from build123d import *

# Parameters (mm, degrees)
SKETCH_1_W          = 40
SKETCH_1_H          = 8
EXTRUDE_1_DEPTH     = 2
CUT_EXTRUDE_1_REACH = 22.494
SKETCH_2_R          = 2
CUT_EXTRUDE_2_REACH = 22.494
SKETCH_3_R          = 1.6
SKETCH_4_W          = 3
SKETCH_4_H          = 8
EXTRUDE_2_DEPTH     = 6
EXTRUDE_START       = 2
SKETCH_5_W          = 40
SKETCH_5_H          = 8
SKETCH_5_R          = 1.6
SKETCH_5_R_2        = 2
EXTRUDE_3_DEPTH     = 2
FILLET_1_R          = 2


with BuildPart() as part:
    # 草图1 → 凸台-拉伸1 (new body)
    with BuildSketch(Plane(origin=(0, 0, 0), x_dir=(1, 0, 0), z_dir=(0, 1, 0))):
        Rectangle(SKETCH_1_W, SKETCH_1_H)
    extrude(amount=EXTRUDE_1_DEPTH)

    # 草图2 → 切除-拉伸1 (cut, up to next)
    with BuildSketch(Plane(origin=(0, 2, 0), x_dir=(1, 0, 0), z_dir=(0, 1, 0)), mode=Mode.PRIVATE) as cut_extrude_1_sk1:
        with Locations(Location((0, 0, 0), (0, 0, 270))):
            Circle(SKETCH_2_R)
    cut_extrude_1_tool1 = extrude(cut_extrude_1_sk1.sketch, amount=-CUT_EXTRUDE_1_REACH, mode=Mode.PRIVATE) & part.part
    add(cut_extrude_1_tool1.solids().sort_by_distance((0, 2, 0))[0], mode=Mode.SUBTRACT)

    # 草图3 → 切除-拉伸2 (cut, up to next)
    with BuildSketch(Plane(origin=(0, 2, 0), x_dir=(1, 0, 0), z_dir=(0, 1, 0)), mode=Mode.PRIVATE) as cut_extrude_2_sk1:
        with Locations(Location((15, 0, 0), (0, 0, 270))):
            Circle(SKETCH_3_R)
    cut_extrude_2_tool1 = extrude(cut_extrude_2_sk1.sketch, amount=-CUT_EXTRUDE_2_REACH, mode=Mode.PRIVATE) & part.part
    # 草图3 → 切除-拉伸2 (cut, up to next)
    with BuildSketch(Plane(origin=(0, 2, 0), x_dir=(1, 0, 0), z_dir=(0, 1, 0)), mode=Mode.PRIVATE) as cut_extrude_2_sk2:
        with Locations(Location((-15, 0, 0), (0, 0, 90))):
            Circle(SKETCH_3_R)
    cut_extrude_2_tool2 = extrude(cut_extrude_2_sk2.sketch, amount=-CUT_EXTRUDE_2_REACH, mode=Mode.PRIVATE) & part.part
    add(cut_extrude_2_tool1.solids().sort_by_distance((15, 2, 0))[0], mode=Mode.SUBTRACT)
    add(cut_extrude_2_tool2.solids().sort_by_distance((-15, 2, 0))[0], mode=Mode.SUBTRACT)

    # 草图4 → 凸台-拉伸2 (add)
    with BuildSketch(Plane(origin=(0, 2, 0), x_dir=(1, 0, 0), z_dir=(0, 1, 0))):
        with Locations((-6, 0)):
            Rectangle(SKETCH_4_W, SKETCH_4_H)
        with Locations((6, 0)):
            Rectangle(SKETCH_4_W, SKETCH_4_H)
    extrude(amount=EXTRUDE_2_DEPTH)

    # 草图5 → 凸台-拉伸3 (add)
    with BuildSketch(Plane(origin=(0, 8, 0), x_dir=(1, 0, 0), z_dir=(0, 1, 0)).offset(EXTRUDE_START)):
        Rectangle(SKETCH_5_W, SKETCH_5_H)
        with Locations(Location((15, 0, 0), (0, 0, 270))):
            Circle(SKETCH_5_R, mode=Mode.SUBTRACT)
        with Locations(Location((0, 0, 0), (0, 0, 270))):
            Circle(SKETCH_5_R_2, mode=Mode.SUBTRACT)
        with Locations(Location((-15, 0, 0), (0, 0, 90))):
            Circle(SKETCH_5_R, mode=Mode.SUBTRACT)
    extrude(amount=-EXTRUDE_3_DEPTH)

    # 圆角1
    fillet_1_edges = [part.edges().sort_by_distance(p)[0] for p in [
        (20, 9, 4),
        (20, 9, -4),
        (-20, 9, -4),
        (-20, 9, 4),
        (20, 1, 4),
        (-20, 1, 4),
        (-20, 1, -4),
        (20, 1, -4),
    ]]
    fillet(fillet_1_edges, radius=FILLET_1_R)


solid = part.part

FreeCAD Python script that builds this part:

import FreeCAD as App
import Part
import Sketcher
from FreeCAD import Vector


def edges_at(feature, points):
    """Names of the edges that pass closest to the given points."""
    edges = feature.Shape.Edges
    near = lambda p: min(range(len(edges)), key=lambda i: edges[i].distToShape(Part.Vertex(*p))[0])
    return sorted({f"Edge{near(p) + 1}" for p in points})

doc = App.newDocument("Part")
body = doc.addObject("PartDesign::Body", "Body")

sketch1 = body.newObject("Sketcher::SketchObject", "Sketch")
sketch1.AttachmentSupport = (doc.getObject("XZ_Plane"), [""])
sketch1.MapMode = "FlatFace"
sketch1.addGeometry(Part.LineSegment(Vector(-20, -4, 0), Vector(-20, 4, 0)), False)
sketch1.addGeometry(Part.LineSegment(Vector(-20, 4, 0), Vector(20, 4, 0)), False)
sketch1.addGeometry(Part.LineSegment(Vector(20, 4, 0), Vector(20, -4, 0)), False)
sketch1.addGeometry(Part.LineSegment(Vector(20, -4, 0), Vector(-20, -4, 0)), False)
sketch1.addConstraint(Sketcher.Constraint("Coincident", 0, 2, 1, 1))
sketch1.addConstraint(Sketcher.Constraint("Coincident", 1, 2, 2, 1))
sketch1.addConstraint(Sketcher.Constraint("Coincident", 2, 2, 3, 1))
sketch1.addConstraint(Sketcher.Constraint("Coincident", 3, 2, 0, 1))
sketch1.addConstraint(Sketcher.Constraint("Vertical", 0))
sketch1.addConstraint(Sketcher.Constraint("Horizontal", 1))
sketch1.addConstraint(Sketcher.Constraint("Vertical", 2))
sketch1.addConstraint(Sketcher.Constraint("Horizontal", 3))
sketch1.addConstraint(Sketcher.Constraint("Symmetric", 0, 2, 2, 2, -1, 1))
sketch1.addConstraint(Sketcher.Constraint("DistanceX", 1, 1, 1, 2, 40.0))
sketch1.addConstraint(Sketcher.Constraint("DistanceY", 0, 1, 0, 2, 8.0))
pad1 = body.newObject("PartDesign::Pad", "Pad")
pad1.Profile = sketch1
pad1.Length = 2
pad1.Reversed = True

sketch2 = body.newObject("Sketcher::SketchObject", "Sketch001")
sketch2.AttachmentSupport = (doc.getObject("XZ_Plane"), [""])
sketch2.MapMode = "FlatFace"
sketch2.AttachmentOffset = App.Placement(Vector(0, 0, -2), App.Rotation())
sketch2.addGeometry(Part.Circle(Vector(0, 0, 0), Vector(0, 0, 1), 2), False)
sketch2.addConstraint(Sketcher.Constraint("Coincident", 0, 3, -1, 1))
sketch2.addConstraint(Sketcher.Constraint("Diameter", 0, 4.0))
pocket1 = body.newObject("PartDesign::Pocket", "Pocket")
pocket1.Profile = sketch2
pocket1.Type = "UpToFirst"
pocket1.Reversed = True

sketch3 = body.newObject("Sketcher::SketchObject", "Sketch002")
sketch3.AttachmentSupport = (doc.getObject("XZ_Plane"), [""])
sketch3.MapMode = "FlatFace"
sketch3.AttachmentOffset = App.Placement(Vector(0, 0, -2), App.Rotation())
sketch3.addGeometry(Part.Circle(Vector(15, 0, 0), Vector(0, 0, 1), 1.6), False)
sketch3.addConstraint(Sketcher.Constraint("PointOnObject", 0, 3, -1))
sketch3.addConstraint(Sketcher.Constraint("Diameter", 0, 3.2))
sketch3.addConstraint(Sketcher.Constraint("DistanceX", -1, 1, 0, 3, 15.0))
pocket2 = body.newObject("PartDesign::Pocket", "Pocket001")
pocket2.Profile = sketch3
pocket2.Type = "UpToFirst"
pocket2.Reversed = True

sketch4 = body.newObject("Sketcher::SketchObject", "Sketch003")
sketch4.AttachmentSupport = (doc.getObject("XZ_Plane"), [""])
sketch4.MapMode = "FlatFace"
sketch4.AttachmentOffset = App.Placement(Vector(0, 0, -2), App.Rotation())
sketch4.addGeometry(Part.Circle(Vector(-15, 0, 0), Vector(0, 0, 1), 1.6), False)
sketch4.addConstraint(Sketcher.Constraint("PointOnObject", 0, 3, -1))
sketch4.addConstraint(Sketcher.Constraint("Diameter", 0, 3.2))
sketch4.addConstraint(Sketcher.Constraint("DistanceX", 0, 3, -1, 1, 15.0))
pocket3 = body.newObject("PartDesign::Pocket", "Pocket002")
pocket3.Profile = sketch4
pocket3.Type = "UpToFirst"
pocket3.Reversed = True

sketch5 = body.newObject("Sketcher::SketchObject", "Sketch004")
sketch5.AttachmentSupport = (doc.getObject("XZ_Plane"), [""])
sketch5.MapMode = "FlatFace"
sketch5.AttachmentOffset = App.Placement(Vector(0, 0, -2), App.Rotation())
sketch5.addGeometry(Part.LineSegment(Vector(-7.5, -4, 0), Vector(-7.5, 4, 0)), False)
sketch5.addGeometry(Part.LineSegment(Vector(-7.5, 4, 0), Vector(-4.5, 4, 0)), False)
sketch5.addGeometry(Part.LineSegment(Vector(-4.5, 4, 0), Vector(-4.5, -4, 0)), False)
sketch5.addGeometry(Part.LineSegment(Vector(-4.5, -4, 0), Vector(-7.5, -4, 0)), False)
sketch5.addGeometry(Part.LineSegment(Vector(4.5, -4, 0), Vector(4.5, 4, 0)), False)
sketch5.addGeometry(Part.LineSegment(Vector(4.5, 4, 0), Vector(7.5, 4, 0)), False)
sketch5.addGeometry(Part.LineSegment(Vector(7.5, 4, 0), Vector(7.5, -4, 0)), False)
sketch5.addGeometry(Part.LineSegment(Vector(7.5, -4, 0), Vector(4.5, -4, 0)), False)
sketch5.addConstraint(Sketcher.Constraint("Coincident", 0, 2, 1, 1))
sketch5.addConstraint(Sketcher.Constraint("Coincident", 1, 2, 2, 1))
sketch5.addConstraint(Sketcher.Constraint("Coincident", 2, 2, 3, 1))
sketch5.addConstraint(Sketcher.Constraint("Coincident", 3, 2, 0, 1))
sketch5.addConstraint(Sketcher.Constraint("Coincident", 4, 2, 5, 1))
sketch5.addConstraint(Sketcher.Constraint("Coincident", 5, 2, 6, 1))
sketch5.addConstraint(Sketcher.Constraint("Coincident", 6, 2, 7, 1))
sketch5.addConstraint(Sketcher.Constraint("Coincident", 7, 2, 4, 1))
sketch5.addConstraint(Sketcher.Constraint("Vertical", 0))
sketch5.addConstraint(Sketcher.Constraint("Horizontal", 1))
sketch5.addConstraint(Sketcher.Constraint("Vertical", 2))
sketch5.addConstraint(Sketcher.Constraint("Horizontal", 3))
sketch5.addConstraint(Sketcher.Constraint("Vertical", 4))
sketch5.addConstraint(Sketcher.Constraint("Horizontal", 5))
sketch5.addConstraint(Sketcher.Constraint("Vertical", 6))
sketch5.addConstraint(Sketcher.Constraint("Horizontal", 7))
sketch5.addConstraint(Sketcher.Constraint("Symmetric", 2, 2, 4, 2, -1, 1))
sketch5.addConstraint(Sketcher.Constraint("Symmetric", 0, 2, 6, 2, -1, 1))
sketch5.addConstraint(Sketcher.Constraint("Horizontal", 1, 2, 4, 2))
sketch5.addConstraint(Sketcher.Constraint("DistanceX", 1, 1, 1, 2, 3.0))
sketch5.addConstraint(Sketcher.Constraint("DistanceY", 0, 1, 0, 2, 8.0))
sketch5.addConstraint(Sketcher.Constraint("DistanceX", 1, 2, 4, 2, 9.0))
pad2 = body.newObject("PartDesign::Pad", "Pad001")
pad2.Profile = sketch5
pad2.Length = 6
pad2.Reversed = True

sketch6 = body.newObject("Sketcher::SketchObject", "Sketch005")
sketch6.AttachmentSupport = (doc.getObject("XZ_Plane"), [""])
sketch6.MapMode = "FlatFace"
sketch6.AttachmentOffset = App.Placement(Vector(0, 0, -10), App.Rotation())
sketch6.addGeometry(Part.LineSegment(Vector(-20, -4, 0), Vector(-20, 4, 0)), False)
sketch6.addGeometry(Part.LineSegment(Vector(-20, 4, 0), Vector(20, 4, 0)), False)
sketch6.addGeometry(Part.LineSegment(Vector(20, 4, 0), Vector(20, -4, 0)), False)
sketch6.addGeometry(Part.LineSegment(Vector(20, -4, 0), Vector(-20, -4, 0)), False)
sketch6.addGeometry(Part.Circle(Vector(-15, 0, 0), Vector(0, 0, 1), 1.6), False)
sketch6.addGeometry(Part.Circle(Vector(0, 0, 0), Vector(0, 0, 1), 2), False)
sketch6.addGeometry(Part.Circle(Vector(15, 0, 0), Vector(0, 0, 1), 1.6), False)
sketch6.addConstraint(Sketcher.Constraint("Coincident", 0, 2, 1, 1))
sketch6.addConstraint(Sketcher.Constraint("Coincident", 1, 2, 2, 1))
sketch6.addConstraint(Sketcher.Constraint("Coincident", 2, 2, 3, 1))
sketch6.addConstraint(Sketcher.Constraint("Coincident", 3, 2, 0, 1))
sketch6.addConstraint(Sketcher.Constraint("Vertical", 0))
sketch6.addConstraint(Sketcher.Constraint("Horizontal", 1))
sketch6.addConstraint(Sketcher.Constraint("Vertical", 2))
sketch6.addConstraint(Sketcher.Constraint("Horizontal", 3))
sketch6.addConstraint(Sketcher.Constraint("Coincident", 5, 3, -1, 1))
sketch6.addConstraint(Sketcher.Constraint("Equal", 4, 6))
sketch6.addConstraint(Sketcher.Constraint("Symmetric", 4, 3, 6, 3, -1, 1))
sketch6.addConstraint(Sketcher.Constraint("Symmetric", 0, 2, 2, 2, -1, 1))
sketch6.addConstraint(Sketcher.Constraint("PointOnObject", 4, 3, -1))
sketch6.addConstraint(Sketcher.Constraint("Diameter", 5, 4.0))
sketch6.addConstraint(Sketcher.Constraint("Diameter", 4, 3.2))
sketch6.addConstraint(Sketcher.Constraint("DistanceX", 1, 1, 1, 2, 40.0))
sketch6.addConstraint(Sketcher.Constraint("DistanceY", 0, 1, 0, 2, 8.0))
sketch6.addConstraint(Sketcher.Constraint("DistanceX", 4, 3, -1, 1, 15.0))
pad3 = body.newObject("PartDesign::Pad", "Pad002")
pad3.Profile = sketch6
pad3.Length = 2
doc.recompute()

fillet = body.newObject("PartDesign::Fillet", "Fillet")
fillet.Base = (pad3, edges_at(pad3, [
    (20, 9, 4),
    (20, 9, -4),
    (-20, 9, -4),
    (-20, 9, 4),
    (20, 1, 4),
    (-20, 1, 4),
    (-20, 1, -4),
    (20, 1, -4),
]))
fillet.Radius = 2

doc.recompute()
